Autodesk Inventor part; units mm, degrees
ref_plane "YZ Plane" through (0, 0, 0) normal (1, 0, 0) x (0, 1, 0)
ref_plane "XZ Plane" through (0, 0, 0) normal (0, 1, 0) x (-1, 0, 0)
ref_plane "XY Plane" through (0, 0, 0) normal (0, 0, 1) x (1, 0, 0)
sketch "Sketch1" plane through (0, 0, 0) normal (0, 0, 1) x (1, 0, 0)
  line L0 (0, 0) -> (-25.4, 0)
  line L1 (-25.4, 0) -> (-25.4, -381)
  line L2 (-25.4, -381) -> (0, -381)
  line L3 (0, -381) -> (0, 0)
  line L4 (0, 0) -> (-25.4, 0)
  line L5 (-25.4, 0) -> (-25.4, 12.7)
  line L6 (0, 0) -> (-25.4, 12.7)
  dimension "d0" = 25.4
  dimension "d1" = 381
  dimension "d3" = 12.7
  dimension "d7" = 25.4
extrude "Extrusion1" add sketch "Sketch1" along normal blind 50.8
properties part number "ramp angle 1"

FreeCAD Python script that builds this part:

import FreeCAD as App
import Part
import Sketcher

V = App.Vector
Q = App.Units.Quantity


def add_polygon(sketch, points):
    """Adds a closed chain of lines whose ends are joined by coincident constraints."""
    first, n = sketch.GeometryCount, len(points)
    for a, b in zip(points, points[1:] + points[:1]):
        sketch.addGeometry(Part.LineSegment(App.Vector(*a, 0), App.Vector(*b, 0)), False)
    for i in range(n):
        sketch.addConstraint(Sketcher.Constraint("Coincident", first + i, 2, first + (i + 1) % n, 1))

doc = App.newDocument("Part")
body = doc.addObject("PartDesign::Body", "Body")

sketch1 = body.newObject("Sketcher::SketchObject", "Sketch")
sketch1.AttachmentSupport = (doc.getObject("XY_Plane"), [""])
sketch1.MapMode = "FlatFace"
add_polygon(sketch1, [(0, -381), (0, 0), (-25, 13), (-25, -381)])
sketch1.addConstraint(Sketcher.Constraint("Vertical", 0))
sketch1.addConstraint(Sketcher.Constraint("Vertical", 2))
sketch1.addConstraint(Sketcher.Constraint("Horizontal", 3))
sketch1.addConstraint(Sketcher.Constraint("Coincident", 0, 2, -1, 1))
sketch1.addConstraint(Sketcher.Constraint("DistanceX", 3, 1, 3, 2, Q("1 in")))
sketch1.addConstraint(Sketcher.Constraint("DistanceY", 0, 1, 0, 2, Q("15 in")))
sketch1.addConstraint(Sketcher.Constraint("DistanceY", -1, 1, 1, 2, Q("0.5 in")))
pad1 = body.newObject("PartDesign::Pad", "Pad")
pad1.Profile = sketch1
pad1.Length = Q("2 in")

doc.recompute()
